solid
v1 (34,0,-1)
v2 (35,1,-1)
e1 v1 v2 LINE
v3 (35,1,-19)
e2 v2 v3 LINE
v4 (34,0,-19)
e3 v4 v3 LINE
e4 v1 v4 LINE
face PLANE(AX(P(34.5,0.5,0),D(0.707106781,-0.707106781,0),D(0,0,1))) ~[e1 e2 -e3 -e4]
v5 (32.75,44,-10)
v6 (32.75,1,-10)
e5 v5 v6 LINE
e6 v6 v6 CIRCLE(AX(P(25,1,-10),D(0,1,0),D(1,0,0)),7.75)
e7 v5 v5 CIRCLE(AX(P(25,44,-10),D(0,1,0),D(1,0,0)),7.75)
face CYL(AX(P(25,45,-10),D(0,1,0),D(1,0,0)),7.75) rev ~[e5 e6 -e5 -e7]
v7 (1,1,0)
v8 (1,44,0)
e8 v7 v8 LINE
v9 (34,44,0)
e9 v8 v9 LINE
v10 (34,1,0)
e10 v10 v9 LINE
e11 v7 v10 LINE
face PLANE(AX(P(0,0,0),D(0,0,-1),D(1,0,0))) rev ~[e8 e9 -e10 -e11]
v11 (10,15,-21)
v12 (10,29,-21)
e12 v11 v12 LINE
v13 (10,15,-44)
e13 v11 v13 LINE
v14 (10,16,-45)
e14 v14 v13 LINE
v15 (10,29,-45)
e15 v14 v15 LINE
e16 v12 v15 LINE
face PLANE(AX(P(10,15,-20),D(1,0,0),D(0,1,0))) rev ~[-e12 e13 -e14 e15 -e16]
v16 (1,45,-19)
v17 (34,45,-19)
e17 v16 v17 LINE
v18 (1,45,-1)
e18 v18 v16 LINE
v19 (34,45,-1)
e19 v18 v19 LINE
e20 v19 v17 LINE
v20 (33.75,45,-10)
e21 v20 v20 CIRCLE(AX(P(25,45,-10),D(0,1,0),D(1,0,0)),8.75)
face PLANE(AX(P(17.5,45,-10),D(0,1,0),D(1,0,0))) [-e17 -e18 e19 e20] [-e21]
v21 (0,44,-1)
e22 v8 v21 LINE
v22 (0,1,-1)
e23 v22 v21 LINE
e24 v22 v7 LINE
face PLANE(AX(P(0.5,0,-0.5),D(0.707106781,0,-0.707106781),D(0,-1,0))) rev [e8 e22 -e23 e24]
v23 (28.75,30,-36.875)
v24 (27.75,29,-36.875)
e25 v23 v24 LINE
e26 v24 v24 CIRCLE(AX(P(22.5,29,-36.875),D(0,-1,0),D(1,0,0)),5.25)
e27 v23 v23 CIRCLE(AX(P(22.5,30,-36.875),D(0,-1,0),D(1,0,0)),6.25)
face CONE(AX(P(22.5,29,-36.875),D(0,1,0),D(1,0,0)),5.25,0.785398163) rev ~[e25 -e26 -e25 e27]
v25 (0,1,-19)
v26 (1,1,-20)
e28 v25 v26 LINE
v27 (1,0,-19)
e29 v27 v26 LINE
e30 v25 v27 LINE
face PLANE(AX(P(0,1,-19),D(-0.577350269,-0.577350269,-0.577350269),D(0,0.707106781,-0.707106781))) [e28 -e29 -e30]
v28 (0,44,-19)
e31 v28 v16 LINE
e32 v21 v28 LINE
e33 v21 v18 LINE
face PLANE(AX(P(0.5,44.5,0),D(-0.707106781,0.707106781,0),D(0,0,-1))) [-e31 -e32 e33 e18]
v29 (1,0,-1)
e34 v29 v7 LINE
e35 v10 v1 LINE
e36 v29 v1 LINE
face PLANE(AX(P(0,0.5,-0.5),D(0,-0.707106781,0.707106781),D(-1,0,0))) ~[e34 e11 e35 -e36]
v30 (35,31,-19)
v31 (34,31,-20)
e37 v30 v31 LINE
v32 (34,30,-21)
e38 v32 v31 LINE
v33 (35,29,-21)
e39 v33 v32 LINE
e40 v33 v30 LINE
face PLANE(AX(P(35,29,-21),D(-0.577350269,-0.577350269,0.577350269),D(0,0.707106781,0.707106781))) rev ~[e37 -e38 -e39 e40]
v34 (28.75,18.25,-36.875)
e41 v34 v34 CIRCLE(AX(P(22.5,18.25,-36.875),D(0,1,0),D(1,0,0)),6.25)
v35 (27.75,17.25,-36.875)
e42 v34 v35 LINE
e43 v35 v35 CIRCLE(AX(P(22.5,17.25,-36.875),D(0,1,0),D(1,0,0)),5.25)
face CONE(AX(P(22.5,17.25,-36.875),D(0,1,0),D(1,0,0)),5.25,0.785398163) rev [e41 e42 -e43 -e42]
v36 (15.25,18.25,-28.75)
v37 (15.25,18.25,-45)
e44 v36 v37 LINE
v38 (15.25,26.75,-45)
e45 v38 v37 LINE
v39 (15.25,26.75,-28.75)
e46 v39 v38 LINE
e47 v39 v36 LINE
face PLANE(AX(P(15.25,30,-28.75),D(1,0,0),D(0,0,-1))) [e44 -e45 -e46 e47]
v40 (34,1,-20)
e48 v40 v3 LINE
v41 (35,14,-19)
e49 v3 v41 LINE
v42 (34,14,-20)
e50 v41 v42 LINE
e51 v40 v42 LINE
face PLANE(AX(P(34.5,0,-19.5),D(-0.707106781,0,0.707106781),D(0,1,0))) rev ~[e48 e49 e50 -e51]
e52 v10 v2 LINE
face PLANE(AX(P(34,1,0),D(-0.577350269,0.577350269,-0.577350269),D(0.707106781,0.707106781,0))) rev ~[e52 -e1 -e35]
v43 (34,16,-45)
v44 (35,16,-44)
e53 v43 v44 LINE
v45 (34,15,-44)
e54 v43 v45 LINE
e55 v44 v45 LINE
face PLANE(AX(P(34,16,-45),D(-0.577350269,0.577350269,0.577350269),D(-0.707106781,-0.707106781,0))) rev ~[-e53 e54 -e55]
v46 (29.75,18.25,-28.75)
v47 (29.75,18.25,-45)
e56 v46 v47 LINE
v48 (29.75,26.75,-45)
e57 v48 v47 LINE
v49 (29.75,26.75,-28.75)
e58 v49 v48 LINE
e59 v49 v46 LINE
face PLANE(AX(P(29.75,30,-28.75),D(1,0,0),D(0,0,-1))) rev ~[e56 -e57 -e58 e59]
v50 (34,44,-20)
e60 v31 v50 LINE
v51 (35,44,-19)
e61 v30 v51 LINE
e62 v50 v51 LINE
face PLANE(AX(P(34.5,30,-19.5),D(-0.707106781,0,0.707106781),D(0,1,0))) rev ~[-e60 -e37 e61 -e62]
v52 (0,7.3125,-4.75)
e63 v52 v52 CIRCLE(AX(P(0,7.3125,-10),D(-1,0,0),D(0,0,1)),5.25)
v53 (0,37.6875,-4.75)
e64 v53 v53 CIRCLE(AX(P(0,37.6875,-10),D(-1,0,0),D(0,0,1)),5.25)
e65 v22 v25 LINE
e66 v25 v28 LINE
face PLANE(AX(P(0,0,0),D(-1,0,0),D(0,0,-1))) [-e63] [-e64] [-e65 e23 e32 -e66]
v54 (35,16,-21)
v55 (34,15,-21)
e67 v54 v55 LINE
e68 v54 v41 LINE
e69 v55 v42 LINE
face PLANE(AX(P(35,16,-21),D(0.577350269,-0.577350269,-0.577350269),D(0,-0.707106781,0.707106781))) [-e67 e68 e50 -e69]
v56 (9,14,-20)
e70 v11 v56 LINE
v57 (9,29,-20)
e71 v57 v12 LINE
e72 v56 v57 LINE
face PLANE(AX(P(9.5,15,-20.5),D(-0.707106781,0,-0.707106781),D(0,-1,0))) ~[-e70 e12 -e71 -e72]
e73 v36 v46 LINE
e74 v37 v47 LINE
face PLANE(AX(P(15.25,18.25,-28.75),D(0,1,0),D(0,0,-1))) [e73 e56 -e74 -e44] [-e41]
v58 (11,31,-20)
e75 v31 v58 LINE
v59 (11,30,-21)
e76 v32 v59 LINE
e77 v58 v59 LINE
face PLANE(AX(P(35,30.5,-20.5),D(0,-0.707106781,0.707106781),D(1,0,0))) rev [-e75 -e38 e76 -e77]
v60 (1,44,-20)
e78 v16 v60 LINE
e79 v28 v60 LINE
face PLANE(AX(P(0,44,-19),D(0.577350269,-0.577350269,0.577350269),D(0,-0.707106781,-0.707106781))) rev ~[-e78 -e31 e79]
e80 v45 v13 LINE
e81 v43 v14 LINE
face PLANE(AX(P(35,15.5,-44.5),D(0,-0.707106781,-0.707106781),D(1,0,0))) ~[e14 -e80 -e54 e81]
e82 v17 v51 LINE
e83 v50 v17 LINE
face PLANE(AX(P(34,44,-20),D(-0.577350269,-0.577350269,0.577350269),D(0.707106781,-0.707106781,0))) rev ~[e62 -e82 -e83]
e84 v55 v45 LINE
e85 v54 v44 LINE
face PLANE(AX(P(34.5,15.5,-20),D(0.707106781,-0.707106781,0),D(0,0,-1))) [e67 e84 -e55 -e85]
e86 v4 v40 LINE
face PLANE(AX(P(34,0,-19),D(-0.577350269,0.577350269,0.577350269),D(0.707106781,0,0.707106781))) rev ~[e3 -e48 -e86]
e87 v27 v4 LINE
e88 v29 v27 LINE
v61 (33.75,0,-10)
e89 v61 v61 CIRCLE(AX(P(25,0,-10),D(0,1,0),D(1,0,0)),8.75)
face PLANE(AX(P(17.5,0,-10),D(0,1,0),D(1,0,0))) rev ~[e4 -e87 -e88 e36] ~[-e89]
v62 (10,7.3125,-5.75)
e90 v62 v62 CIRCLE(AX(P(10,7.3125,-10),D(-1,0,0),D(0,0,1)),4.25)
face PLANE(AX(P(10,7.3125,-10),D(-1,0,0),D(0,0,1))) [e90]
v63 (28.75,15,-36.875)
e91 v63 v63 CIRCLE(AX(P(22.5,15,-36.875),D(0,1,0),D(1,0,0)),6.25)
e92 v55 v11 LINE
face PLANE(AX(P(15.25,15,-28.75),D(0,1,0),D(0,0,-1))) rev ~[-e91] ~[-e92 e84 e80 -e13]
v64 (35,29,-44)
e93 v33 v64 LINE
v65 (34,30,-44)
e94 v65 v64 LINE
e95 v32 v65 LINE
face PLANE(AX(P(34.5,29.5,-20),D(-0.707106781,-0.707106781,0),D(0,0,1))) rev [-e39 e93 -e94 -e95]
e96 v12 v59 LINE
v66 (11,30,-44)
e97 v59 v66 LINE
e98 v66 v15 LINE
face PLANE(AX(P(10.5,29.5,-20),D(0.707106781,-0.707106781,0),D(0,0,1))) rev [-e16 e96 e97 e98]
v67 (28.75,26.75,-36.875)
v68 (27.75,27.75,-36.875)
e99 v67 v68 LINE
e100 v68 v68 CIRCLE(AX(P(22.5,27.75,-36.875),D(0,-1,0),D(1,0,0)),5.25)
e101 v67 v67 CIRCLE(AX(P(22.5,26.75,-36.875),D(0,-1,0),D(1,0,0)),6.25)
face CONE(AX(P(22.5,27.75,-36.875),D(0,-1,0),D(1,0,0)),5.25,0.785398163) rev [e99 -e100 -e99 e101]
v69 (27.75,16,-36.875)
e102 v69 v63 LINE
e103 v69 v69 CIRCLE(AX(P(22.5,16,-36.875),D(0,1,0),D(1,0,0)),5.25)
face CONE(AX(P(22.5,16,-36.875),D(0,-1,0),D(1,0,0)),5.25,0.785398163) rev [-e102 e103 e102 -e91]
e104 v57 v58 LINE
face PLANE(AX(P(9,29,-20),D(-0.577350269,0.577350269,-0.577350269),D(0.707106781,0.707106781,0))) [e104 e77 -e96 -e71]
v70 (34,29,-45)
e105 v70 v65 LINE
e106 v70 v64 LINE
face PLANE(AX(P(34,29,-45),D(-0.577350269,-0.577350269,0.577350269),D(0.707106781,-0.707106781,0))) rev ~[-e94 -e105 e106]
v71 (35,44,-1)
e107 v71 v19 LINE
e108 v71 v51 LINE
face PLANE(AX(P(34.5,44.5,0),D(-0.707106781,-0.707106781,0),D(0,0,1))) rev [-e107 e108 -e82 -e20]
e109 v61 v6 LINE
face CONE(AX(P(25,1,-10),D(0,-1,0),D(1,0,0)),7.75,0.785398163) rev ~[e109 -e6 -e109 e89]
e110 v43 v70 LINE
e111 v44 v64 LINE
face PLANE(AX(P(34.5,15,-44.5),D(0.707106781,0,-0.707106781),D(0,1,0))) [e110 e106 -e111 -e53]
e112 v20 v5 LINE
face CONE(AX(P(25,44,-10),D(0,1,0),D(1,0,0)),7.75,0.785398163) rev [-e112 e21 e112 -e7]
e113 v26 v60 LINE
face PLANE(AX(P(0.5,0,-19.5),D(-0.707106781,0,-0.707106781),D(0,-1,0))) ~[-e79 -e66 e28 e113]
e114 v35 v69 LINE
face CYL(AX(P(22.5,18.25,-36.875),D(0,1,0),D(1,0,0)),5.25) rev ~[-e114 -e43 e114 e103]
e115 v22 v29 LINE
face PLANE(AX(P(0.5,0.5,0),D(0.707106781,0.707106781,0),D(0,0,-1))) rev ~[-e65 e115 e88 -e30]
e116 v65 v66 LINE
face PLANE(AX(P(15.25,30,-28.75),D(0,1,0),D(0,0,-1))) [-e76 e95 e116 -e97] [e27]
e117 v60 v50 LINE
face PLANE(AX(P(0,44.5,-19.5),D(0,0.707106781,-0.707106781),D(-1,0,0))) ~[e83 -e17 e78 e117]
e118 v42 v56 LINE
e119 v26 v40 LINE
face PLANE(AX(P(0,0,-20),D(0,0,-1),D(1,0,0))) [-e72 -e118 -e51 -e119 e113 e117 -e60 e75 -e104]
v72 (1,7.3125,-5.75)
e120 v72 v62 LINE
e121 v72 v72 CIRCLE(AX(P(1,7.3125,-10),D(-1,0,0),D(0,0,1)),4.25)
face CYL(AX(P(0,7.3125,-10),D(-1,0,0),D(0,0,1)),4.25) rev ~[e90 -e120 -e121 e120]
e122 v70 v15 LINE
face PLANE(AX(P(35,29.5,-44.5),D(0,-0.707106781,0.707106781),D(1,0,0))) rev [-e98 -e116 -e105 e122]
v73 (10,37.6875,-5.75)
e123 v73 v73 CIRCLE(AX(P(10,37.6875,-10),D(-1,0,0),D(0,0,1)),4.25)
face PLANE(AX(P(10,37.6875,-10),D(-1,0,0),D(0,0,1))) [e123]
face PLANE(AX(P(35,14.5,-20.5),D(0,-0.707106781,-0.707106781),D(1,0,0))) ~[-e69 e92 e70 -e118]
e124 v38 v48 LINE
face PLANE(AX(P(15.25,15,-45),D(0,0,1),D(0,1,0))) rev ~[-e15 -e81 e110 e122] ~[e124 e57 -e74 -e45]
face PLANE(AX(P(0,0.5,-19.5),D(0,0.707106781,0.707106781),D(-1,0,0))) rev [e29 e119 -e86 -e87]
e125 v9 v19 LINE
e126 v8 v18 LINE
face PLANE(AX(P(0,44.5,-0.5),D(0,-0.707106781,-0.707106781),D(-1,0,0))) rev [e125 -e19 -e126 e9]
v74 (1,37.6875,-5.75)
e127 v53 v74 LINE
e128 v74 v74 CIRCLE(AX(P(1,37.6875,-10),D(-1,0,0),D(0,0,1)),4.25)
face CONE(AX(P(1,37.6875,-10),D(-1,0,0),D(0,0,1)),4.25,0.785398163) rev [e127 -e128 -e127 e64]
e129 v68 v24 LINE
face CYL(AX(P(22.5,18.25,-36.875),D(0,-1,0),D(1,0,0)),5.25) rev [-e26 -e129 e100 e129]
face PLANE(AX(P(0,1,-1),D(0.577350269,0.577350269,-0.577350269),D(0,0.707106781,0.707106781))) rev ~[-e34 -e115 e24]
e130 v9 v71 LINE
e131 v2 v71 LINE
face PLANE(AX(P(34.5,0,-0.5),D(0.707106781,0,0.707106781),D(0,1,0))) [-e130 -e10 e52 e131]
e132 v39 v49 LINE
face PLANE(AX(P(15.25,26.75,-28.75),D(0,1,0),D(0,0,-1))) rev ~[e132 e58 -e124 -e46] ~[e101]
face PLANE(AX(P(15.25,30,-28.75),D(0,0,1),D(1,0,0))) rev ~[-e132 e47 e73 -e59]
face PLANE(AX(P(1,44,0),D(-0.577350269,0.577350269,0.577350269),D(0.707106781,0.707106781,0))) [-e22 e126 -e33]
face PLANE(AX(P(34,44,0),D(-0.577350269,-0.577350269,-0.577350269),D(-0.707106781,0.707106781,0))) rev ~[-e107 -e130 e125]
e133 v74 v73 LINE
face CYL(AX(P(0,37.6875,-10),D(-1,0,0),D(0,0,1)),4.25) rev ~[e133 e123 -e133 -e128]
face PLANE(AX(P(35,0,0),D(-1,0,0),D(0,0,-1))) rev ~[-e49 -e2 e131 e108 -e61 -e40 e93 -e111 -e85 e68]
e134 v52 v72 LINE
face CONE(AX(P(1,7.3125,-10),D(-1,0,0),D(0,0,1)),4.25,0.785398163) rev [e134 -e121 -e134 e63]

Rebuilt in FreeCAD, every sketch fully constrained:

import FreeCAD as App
import Part
import Sketcher
from FreeCAD import Vector


def edges_at(feature, points):
    """Names of the edges that pass closest to the given points."""
    edges = feature.Shape.Edges
    near = lambda p: min(range(len(edges)), key=lambda i: edges[i].distToShape(Part.Vertex(*p))[0])
    return sorted({f"Edge{near(p) + 1}" for p in points})

doc = App.newDocument("Part")
params = doc.addObject("Spreadsheet::Sheet", "Params")
for row, (alias, value) in enumerate([
    ("sketch1_width", "35 mm"),
    ("sketch1_height", "20 mm"),
    ("pad1_length", "45 mm"),
    ("sketch2_diameter", "15.5 mm"),
    ("sketch3_diameter", "8.5 mm"),
    ("pocket2_length", "10 mm"),
    ("sketch4_width", "25 mm"),
    ("sketch4_height", "15 mm"),
    ("pad2_length", "25 mm"),
    ("sketch5_width", "14.5 mm"),
    ("sketch5_height", "16.25 mm"),
    ("sketch6_width", "3.25 mm"),
    ("sketch6_height", "16.25 mm"),
    ("sketch7_width", "3.25 mm"),
    ("sketch7_height", "16.25 mm"),
    ("sketch8_diameter", "10.5 mm"),
    ("chamfer_size", "1 mm"),
], start=1):
    params.set(f"A{row}", alias)
    params.set(f"B{row}", "=" + value)
    params.setAlias(f"B{row}", alias)

body = doc.addObject("PartDesign::Body", "Body")

# Sketch on XZ plane
sketch1 = body.newObject("Sketcher::SketchObject", "Sketch")
sketch1.AttachmentSupport = (doc.getObject("XZ_Plane"), [""])
sketch1.MapMode = "FlatFace"
sketch1.addGeometry(Part.LineSegment(Vector(0, -20, 0), Vector(0, 0, 0)), False)
sketch1.addGeometry(Part.LineSegment(Vector(0, 0, 0), Vector(35, 0, 0)), False)
sketch1.addGeometry(Part.LineSegment(Vector(35, 0, 0), Vector(35, -20, 0)), False)
sketch1.addGeometry(Part.LineSegment(Vector(35, -20, 0), Vector(0, -20, 0)), False)
sketch1.addConstraint(Sketcher.Constraint("Coincident", 0, 2, 1, 1))
sketch1.addConstraint(Sketcher.Constraint("Coincident", 1, 2, 2, 1))
sketch1.addConstraint(Sketcher.Constraint("Coincident", 2, 2, 3, 1))
sketch1.addConstraint(Sketcher.Constraint("Coincident", 3, 2, 0, 1))
sketch1.addConstraint(Sketcher.Constraint("Vertical", 0))
sketch1.addConstraint(Sketcher.Constraint("Horizontal", 1))
sketch1.addConstraint(Sketcher.Constraint("Vertical", 2))
sketch1.addConstraint(Sketcher.Constraint("Horizontal", 3))
sketch1.addConstraint(Sketcher.Constraint("Coincident", 0, 2, -1, 1))
sketch1.addConstraint(Sketcher.Constraint("DistanceX", 1, 1, 1, 2, 35.0))
sketch1.addConstraint(Sketcher.Constraint("DistanceY", 0, 1, 0, 2, 20.0))
sketch1.setExpression("Constraints[9]", "Params.sketch1_width")
sketch1.setExpression("Constraints[10]", "Params.sketch1_height")
pad1 = body.newObject("PartDesign::Pad", "Pad")
pad1.Profile = sketch1
pad1.setExpression("Length", "Params.pad1_length")
pad1.Reversed = True

# Sketch on XZ plane
sketch2 = body.newObject("Sketcher::SketchObject", "Sketch001")
sketch2.AttachmentSupport = (doc.getObject("XZ_Plane"), [""])
sketch2.MapMode = "FlatFace"
sketch2.AttachmentOffset = App.Placement(Vector(0, 0, -45), App.Rotation())
sketch2.addGeometry(Part.Circle(Vector(25, -10, 0), Vector(0, 0, 1), 7.75), False)
sketch2.addConstraint(Sketcher.Constraint("Diameter", 0, 15.5))
sketch2.addConstraint(Sketcher.Constraint("DistanceX", -1, 1, 0, 3, 25.0))
sketch2.addConstraint(Sketcher.Constraint("DistanceY", 0, 3, -1, 1, 10.0))
sketch2.setExpression("Constraints[0]", "Params.sketch2_diameter")
pocket1 = body.newObject("PartDesign::Pocket", "Pocket")
pocket1.Profile = sketch2
pocket1.Type = "ThroughAll"
pocket1.Reversed = True

# Sketch on YZ plane
sketch3 = body.newObject("Sketcher::SketchObject", "Sketch002")
sketch3.AttachmentSupport = (doc.getObject("YZ_Plane"), [""])
sketch3.MapMode = "FlatFace"
sketch3.addGeometry(Part.Circle(Vector(37.6875, -10, 0), Vector(0, 0, 1), 4.25), False)
sketch3.addGeometry(Part.Circle(Vector(7.3125, -10, 0), Vector(0, 0, 1), 4.25), False)
sketch3.addConstraint(Sketcher.Constraint("Equal", 0, 1))
sketch3.addConstraint(Sketcher.Constraint("Horizontal", 0, 3, 1, 3))
sketch3.addConstraint(Sketcher.Constraint("Diameter", 0, 8.5))
sketch3.addConstraint(Sketcher.Constraint("DistanceY", 0, 3, -1, 1, 10.0))
sketch3.addConstraint(Sketcher.Constraint("DistanceX", 1, 3, 0, 3, 30.375))
sketch3.addConstraint(Sketcher.Constraint("DistanceX", -1, 1, 0, 3, 37.6875))
sketch3.setExpression("Constraints[2]", "Params.sketch3_diameter")
pocket2 = body.newObject("PartDesign::Pocket", "Pocket001")
pocket2.Profile = sketch3
pocket2.setExpression("Length", "Params.pocket2_length")
pocket2.Reversed = True

# Sketch on XY plane
sketch4 = body.newObject("Sketcher::SketchObject", "Sketch003")
sketch4.AttachmentSupport = (doc.getObject("XY_Plane"), [""])
sketch4.MapMode = "FlatFace"
sketch4.AttachmentOffset = App.Placement(Vector(0, 0, -20), App.Rotation())
sketch4.addGeometry(Part.LineSegment(Vector(35, 30, 0), Vector(35, 15, 0)), False)
sketch4.addGeometry(Part.LineSegment(Vector(35, 15, 0), Vector(10, 15, 0)), False)
sketch4.addGeometry(Part.LineSegment(Vector(10, 15, 0), Vector(10, 30, 0)), False)
sketch4.addGeometry(Part.LineSegment(Vector(10, 30, 0), Vector(35, 30, 0)), False)
sketch4.addConstraint(Sketcher.Constraint("Coincident", 0, 2, 1, 1))
sketch4.addConstraint(Sketcher.Constraint("Coincident", 1, 2, 2, 1))
sketch4.addConstraint(Sketcher.Constraint("Coincident", 2, 2, 3, 1))
sketch4.addConstraint(Sketcher.Constraint("Coincident", 3, 2, 0, 1))
sketch4.addConstraint(Sketcher.Constraint("Vertical", 0))
sketch4.addConstraint(Sketcher.Constraint("Horizontal", 1))
sketch4.addConstraint(Sketcher.Constraint("Vertical", 2))
sketch4.addConstraint(Sketcher.Constraint("Horizontal", 3))
sketch4.addConstraint(Sketcher.Constraint("DistanceX", 1, 2, 1, 1, 25.0))
sketch4.addConstraint(Sketcher.Constraint("DistanceY", 0, 2, 0, 1, 15.0))
sketch4.addConstraint(Sketcher.Constraint("DistanceX", -1, 1, 0, 2, 35.0))
sketch4.addConstraint(Sketcher.Constraint("DistanceY", -1, 1, 0, 2, 15.0))
sketch4.setExpression("Constraints[8]", "Params.sketch4_width")
sketch4.setExpression("Constraints[9]", "Params.sketch4_height")
pad2 = body.newObject("PartDesign::Pad", "Pad001")
pad2.Profile = sketch4
pad2.setExpression("Length", "Params.pad2_length")
pad2.Reversed = True

# Sketch on XZ plane
sketch5 = body.newObject("Sketcher::SketchObject", "Sketch004")
sketch5.AttachmentSupport = (doc.getObject("XZ_Plane"), [""])
sketch5.MapMode = "FlatFace"
sketch5.AttachmentOffset = App.Placement(Vector(0, 0, -30), App.Rotation())
sketch5.addGeometry(Part.LineSegment(Vector(15.25, -45, 0), Vector(15.25, -28.75, 0)), False)
sketch5.addGeometry(Part.LineSegment(Vector(15.25, -28.75, 0), Vector(29.75, -28.75, 0)), False)
sketch5.addGeometry(Part.LineSegment(Vector(29.75, -28.75, 0), Vector(29.75, -45, 0)), False)
sketch5.addGeometry(Part.LineSegment(Vector(29.75, -45, 0), Vector(15.25, -45, 0)), False)
sketch5.addConstraint(Sketcher.Constraint("Coincident", 0, 2, 1, 1))
sketch5.addConstraint(Sketcher.Constraint("Coincident", 1, 2, 2, 1))
sketch5.addConstraint(Sketcher.Constraint("Coincident", 2, 2, 3, 1))
sketch5.addConstraint(Sketcher.Constraint("Coincident", 3, 2, 0, 1))
sketch5.addConstraint(Sketcher.Constraint("Vertical", 0))
sketch5.addConstraint(Sketcher.Constraint("Horizontal", 1))
sketch5.addConstraint(Sketcher.Constraint("Vertical", 2))
sketch5.addConstraint(Sketcher.Constraint("Horizontal", 3))
sketch5.addConstraint(Sketcher.Constraint("DistanceX", 1, 1, 1, 2, 14.5))
sketch5.addConstraint(Sketcher.Constraint("DistanceY", 2, 2, -1, 1, 45.0))
sketch5.addConstraint(Sketcher.Constraint("DistanceY", 0, 1, 0, 2, 16.25))
sketch5.addConstraint(Sketcher.Constraint("DistanceX", -1, 1, 0, 2, 15.25))
sketch5.setExpression("Constraints[8]", "Params.sketch5_width")
sketch5.setExpression("Constraints[10]", "Params.sketch5_height")
pocket3 = body.newObject("PartDesign::Pocket", "Pocket002")
pocket3.Profile = sketch5
pocket3.Type = "ThroughAll"
pocket3.Reversed = True

# Sketch on YZ plane
sketch6 = body.newObject("Sketcher::SketchObject", "Sketch005")
sketch6.AttachmentSupport = (doc.getObject("YZ_Plane"), [""])
sketch6.MapMode = "FlatFace"
sketch6.AttachmentOffset = App.Placement(Vector(0, 0, 15.25), App.Rotation())
sketch6.addGeometry(Part.LineSegment(Vector(30, -28.75, 0), Vector(26.75, -28.75, 0)), False)
sketch6.addGeometry(Part.LineSegment(Vector(26.75, -28.75, 0), Vector(26.75, -45, 0)), False)
sketch6.addGeometry(Part.LineSegment(Vector(26.75, -45, 0), Vector(30, -45, 0)), False)
sketch6.addGeometry(Part.LineSegment(Vector(30, -45, 0), Vector(30, -28.75, 0)), False)
sketch6.addConstraint(Sketcher.Constraint("Coincident", 0, 2, 1, 1))
sketch6.addConstraint(Sketcher.Constraint("Coincident", 1, 2, 2, 1))
sketch6.addConstraint(Sketcher.Constraint("Coincident", 2, 2, 3, 1))
sketch6.addConstraint(Sketcher.Constraint("Coincident", 3, 2, 0, 1))
sketch6.addConstraint(Sketcher.Constraint("Horizontal", 0))
sketch6.addConstraint(Sketcher.Constraint("Vertical", 1))
sketch6.addConstraint(Sketcher.Constraint("Horizontal", 2))
sketch6.addConstraint(Sketcher.Constraint("Vertical", 3))
sketch6.addConstraint(Sketcher.Constraint("DistanceY", 1, 2, -1, 1, 45.0))
sketch6.addConstraint(Sketcher.Constraint("DistanceX", -1, 1, 2, 2, 30.0))
sketch6.addConstraint(Sketcher.Constraint("DistanceX", 0, 2, 0, 1, 3.25))
sketch6.addConstraint(Sketcher.Constraint("DistanceY", 1, 2, 1, 1, 16.25))
sketch6.setExpression("Constraints[10]", "Params.sketch6_width")
sketch6.setExpression("Constraints[11]", "Params.sketch6_height")
pad3 = body.newObject("PartDesign::Pad", "Pad002")
pad3.Profile = sketch6
pad3.Type = "UpToFirst"

# Sketch on YZ plane
sketch7 = body.newObject("Sketcher::SketchObject", "Sketch006")
sketch7.AttachmentSupport = (doc.getObject("YZ_Plane"), [""])
sketch7.MapMode = "FlatFace"
sketch7.AttachmentOffset = App.Placement(Vector(0, 0, 15.25), App.Rotation())
sketch7.addGeometry(Part.LineSegment(Vector(18.25, -28.75, 0), Vector(15, -28.75, 0)), False)
sketch7.addGeometry(Part.LineSegment(Vector(15, -28.75, 0), Vector(15, -45, 0)), False)
sketch7.addGeometry(Part.LineSegment(Vector(15, -45, 0), Vector(18.25, -45, 0)), False)
sketch7.addGeometry(Part.LineSegment(Vector(18.25, -45, 0), Vector(18.25, -28.75, 0)), False)
sketch7.addConstraint(Sketcher.Constraint("Coincident", 0, 2, 1, 1))
sketch7.addConstraint(Sketcher.Constraint("Coincident", 1, 2, 2, 1))
sketch7.addConstraint(Sketcher.Constraint("Coincident", 2, 2, 3, 1))
sketch7.addConstraint(Sketcher.Constraint("Coincident", 3, 2, 0, 1))
sketch7.addConstraint(Sketcher.Constraint("Horizontal", 0))
sketch7.addConstraint(Sketcher.Constraint("Vertical", 1))
sketch7.addConstraint(Sketcher.Constraint("Horizontal", 2))
sketch7.addConstraint(Sketcher.Constraint("Vertical", 3))
sketch7.addConstraint(Sketcher.Constraint("DistanceX", -1, 1, 0, 2, 15.0))
sketch7.addConstraint(Sketcher.Constraint("DistanceY", 1, 2, -1, 1, 45.0))
sketch7.addConstraint(Sketcher.Constraint("DistanceX", 0, 2, 0, 1, 3.25))
sketch7.addConstraint(Sketcher.Constraint("DistanceY", 1, 2, 1, 1, 16.25))
sketch7.setExpression("Constraints[10]", "Params.sketch7_width")
sketch7.setExpression("Constraints[11]", "Params.sketch7_height")
pad4 = body.newObject("PartDesign::Pad", "Pad003")
pad4.Profile = sketch7
pad4.Type = "UpToFirst"

# Sketch on XZ plane
sketch8 = body.newObject("Sketcher::SketchObject", "Sketch007")
sketch8.AttachmentSupport = (doc.getObject("XZ_Plane"), [""])
sketch8.MapMode = "FlatFace"
sketch8.AttachmentOffset = App.Placement(Vector(0, 0, -18.25), App.Rotation())
sketch8.addGeometry(Part.Circle(Vector(22.5, -36.875, 0), Vector(0, 0, 1), 5.25), False)
sketch8.addConstraint(Sketcher.Constraint("Diameter", 0, 10.5))
sketch8.addConstraint(Sketcher.Constraint("DistanceX", -1, 1, 0, 3, 22.5))
sketch8.addConstraint(Sketcher.Constraint("DistanceY", 0, 3, -1, 1, 36.875))
sketch8.setExpression("Constraints[0]", "Params.sketch8_diameter")
pocket4 = body.newObject("PartDesign::Pocket", "Pocket003")
pocket4.Profile = sketch8
pocket4.Type = "ThroughAll"
pocket4.Midplane = True
doc.recompute()

chamfer = body.newObject("PartDesign::Chamfer", "Chamfer")
chamfer.Base = (pocket4, edges_at(pocket4, [
    (35, 45, -10),
    (17.25, 0, -10),
    (17.25, 45, -10),
    (17.5, 45, -20),
    (0, 37.688, -14.25),
    (0, 7.312, -14.25),
    (35, 7.5, -20),
    (10, 22.5, -20),
    (22.5, 30, -20),
    (10, 30, -32.5),
    (35, 30, -32.5),
    (22.5, 15, -20),
    (35, 15, -32.5),
    (22.5, 30, -45),
    (35, 22.5, -45),
    (22.5, 15, -45),
    (0, 45, -10),
    (17.5, 0, -20),
    (35, 0, -10),
    (17.5, 0, 0),
    (0, 0, -10),
    (0, 22.5, -20),
    (35, 37.5, -20),
    (35, 22.5, 0),
    (0, 22.5, 0),
    (17.25, 26.75, -36.875),
    (17.25, 30, -36.875),
    (17.25, 18.25, -36.875),
    (17.25, 15, -36.875),
    (17.5, 45, 0),
]))
chamfer.setExpression("Size", "Params.chamfer_size")

doc.recompute()
